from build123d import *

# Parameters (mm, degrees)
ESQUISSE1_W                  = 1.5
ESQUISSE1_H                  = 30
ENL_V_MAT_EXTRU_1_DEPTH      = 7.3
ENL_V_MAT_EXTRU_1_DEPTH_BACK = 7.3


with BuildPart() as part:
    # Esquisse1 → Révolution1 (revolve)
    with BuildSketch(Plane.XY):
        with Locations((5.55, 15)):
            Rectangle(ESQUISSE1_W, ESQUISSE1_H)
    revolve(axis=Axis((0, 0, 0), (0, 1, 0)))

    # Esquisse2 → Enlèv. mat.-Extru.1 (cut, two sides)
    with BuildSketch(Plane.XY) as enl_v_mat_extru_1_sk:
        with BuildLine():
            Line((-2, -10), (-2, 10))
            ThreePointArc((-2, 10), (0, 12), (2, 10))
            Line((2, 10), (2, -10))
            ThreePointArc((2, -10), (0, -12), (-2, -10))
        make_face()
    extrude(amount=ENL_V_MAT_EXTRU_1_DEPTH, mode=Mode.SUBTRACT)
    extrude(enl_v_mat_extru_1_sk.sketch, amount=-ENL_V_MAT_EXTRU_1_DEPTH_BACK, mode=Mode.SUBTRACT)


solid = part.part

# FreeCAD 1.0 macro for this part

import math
import FreeCAD as App
import Part
import Sketcher
from FreeCAD import Vector


def add_polygon(sketch, points):
    """Adds a closed chain of lines whose ends are joined by coincident constraints."""
    first, n = sketch.GeometryCount, len(points)
    for a, b in zip(points, points[1:] + points[:1]):
        sketch.addGeometry(Part.LineSegment(App.Vector(*a, 0), App.Vector(*b, 0)), False)
    for i in range(n):
        sketch.addConstraint(Sketcher.Constraint("Coincident", first + i, 2, first + (i + 1) % n, 1))

doc = App.newDocument("Part")
body = doc.addObject("PartDesign::Body", "Body")

# Sketch on XY plane
sketch1 = doc.addObject("Sketcher::SketchObject", "Sketch")
body.addObject(sketch1)
sketch1.AttachmentSupport = (doc.XY_Plane, [""])
sketch1.MapMode = "FlatFace"
add_polygon(sketch1, [(4.8, 30), (4.8, 0), (6.3, 0), (6.3, 30)])  # lines 0-3
sketch1.addConstraint(Sketcher.Constraint("Vertical", 0))
sketch1.addConstraint(Sketcher.Constraint("Horizontal", 1))
sketch1.addConstraint(Sketcher.Constraint("Vertical", 2))
sketch1.addConstraint(Sketcher.Constraint("Horizontal", 3))
sketch1.addConstraint(Sketcher.Constraint("PointOnObject", 0, 2, -1))
sketch1.addConstraint(Sketcher.Constraint("DistanceY", 0, 2, 0, 1, 30.0))
sketch1.addConstraint(Sketcher.Constraint("DistanceX", 1, 1, 1, 2, 1.5))
sketch1.addConstraint(Sketcher.Constraint("DistanceX", -1, 1, 0, 2, 4.8))
revolution = doc.addObject("PartDesign::Revolution", "Revolution")
body.addObject(revolution)
revolution.Profile = sketch1
revolution.ReferenceAxis = (sketch1, ["V_Axis"])
revolution.Angle = 360

# Sketch on XY plane
sketch2 = doc.addObject("Sketcher::SketchObject", "Sketch001")
body.addObject(sketch2)
sketch2.AttachmentSupport = (doc.XY_Plane, [""])
sketch2.MapMode = "FlatFace"
sketch2.addGeometry(Part.LineSegment(Vector(-2, 10, 0), Vector(-2, -10, 0)), False)
sketch2.addGeometry(Part.ArcOfCircle(Part.Circle(Vector(0, -10, 0), Vector(0, 0, 1), 2), math.radians(180), math.radians(360)), False)
sketch2.addGeometry(Part.LineSegment(Vector(2, -10, 0), Vector(2, 10, 0)), False)
sketch2.addGeometry(Part.ArcOfCircle(Part.Circle(Vector(0, 10, 0), Vector(0, 0, 1), 2), math.radians(0), math.radians(180)), False)
sketch2.addConstraint(Sketcher.Constraint("Tangent", 0, 2, 1, 1))
sketch2.addConstraint(Sketcher.Constraint("Tangent", 1, 2, 2, 1))
sketch2.addConstraint(Sketcher.Constraint("Tangent", 2, 2, 3, 1))
sketch2.addConstraint(Sketcher.Constraint("Tangent", 3, 2, 0, 1))
sketch2.addConstraint(Sketcher.Constraint("Vertical", 0))
sketch2.addConstraint(Sketcher.Constraint("Vertical", 2))
sketch2.addConstraint(Sketcher.Constraint("Symmetric", 1, 3, 3, 3, -1, 1))
sketch2.addConstraint(Sketcher.Constraint("Radius", 1, 2.0))
sketch2.addConstraint(Sketcher.Constraint("DistanceY", 0, 2, 0, 1, 20.0))
pocket1 = doc.addObject("PartDesign::Pocket", "Pocket")
body.addObject(pocket1)
pocket1.Profile = sketch2
pocket1.Type = "ThroughAll"
pocket1.Midplane = True

doc.recompute()
